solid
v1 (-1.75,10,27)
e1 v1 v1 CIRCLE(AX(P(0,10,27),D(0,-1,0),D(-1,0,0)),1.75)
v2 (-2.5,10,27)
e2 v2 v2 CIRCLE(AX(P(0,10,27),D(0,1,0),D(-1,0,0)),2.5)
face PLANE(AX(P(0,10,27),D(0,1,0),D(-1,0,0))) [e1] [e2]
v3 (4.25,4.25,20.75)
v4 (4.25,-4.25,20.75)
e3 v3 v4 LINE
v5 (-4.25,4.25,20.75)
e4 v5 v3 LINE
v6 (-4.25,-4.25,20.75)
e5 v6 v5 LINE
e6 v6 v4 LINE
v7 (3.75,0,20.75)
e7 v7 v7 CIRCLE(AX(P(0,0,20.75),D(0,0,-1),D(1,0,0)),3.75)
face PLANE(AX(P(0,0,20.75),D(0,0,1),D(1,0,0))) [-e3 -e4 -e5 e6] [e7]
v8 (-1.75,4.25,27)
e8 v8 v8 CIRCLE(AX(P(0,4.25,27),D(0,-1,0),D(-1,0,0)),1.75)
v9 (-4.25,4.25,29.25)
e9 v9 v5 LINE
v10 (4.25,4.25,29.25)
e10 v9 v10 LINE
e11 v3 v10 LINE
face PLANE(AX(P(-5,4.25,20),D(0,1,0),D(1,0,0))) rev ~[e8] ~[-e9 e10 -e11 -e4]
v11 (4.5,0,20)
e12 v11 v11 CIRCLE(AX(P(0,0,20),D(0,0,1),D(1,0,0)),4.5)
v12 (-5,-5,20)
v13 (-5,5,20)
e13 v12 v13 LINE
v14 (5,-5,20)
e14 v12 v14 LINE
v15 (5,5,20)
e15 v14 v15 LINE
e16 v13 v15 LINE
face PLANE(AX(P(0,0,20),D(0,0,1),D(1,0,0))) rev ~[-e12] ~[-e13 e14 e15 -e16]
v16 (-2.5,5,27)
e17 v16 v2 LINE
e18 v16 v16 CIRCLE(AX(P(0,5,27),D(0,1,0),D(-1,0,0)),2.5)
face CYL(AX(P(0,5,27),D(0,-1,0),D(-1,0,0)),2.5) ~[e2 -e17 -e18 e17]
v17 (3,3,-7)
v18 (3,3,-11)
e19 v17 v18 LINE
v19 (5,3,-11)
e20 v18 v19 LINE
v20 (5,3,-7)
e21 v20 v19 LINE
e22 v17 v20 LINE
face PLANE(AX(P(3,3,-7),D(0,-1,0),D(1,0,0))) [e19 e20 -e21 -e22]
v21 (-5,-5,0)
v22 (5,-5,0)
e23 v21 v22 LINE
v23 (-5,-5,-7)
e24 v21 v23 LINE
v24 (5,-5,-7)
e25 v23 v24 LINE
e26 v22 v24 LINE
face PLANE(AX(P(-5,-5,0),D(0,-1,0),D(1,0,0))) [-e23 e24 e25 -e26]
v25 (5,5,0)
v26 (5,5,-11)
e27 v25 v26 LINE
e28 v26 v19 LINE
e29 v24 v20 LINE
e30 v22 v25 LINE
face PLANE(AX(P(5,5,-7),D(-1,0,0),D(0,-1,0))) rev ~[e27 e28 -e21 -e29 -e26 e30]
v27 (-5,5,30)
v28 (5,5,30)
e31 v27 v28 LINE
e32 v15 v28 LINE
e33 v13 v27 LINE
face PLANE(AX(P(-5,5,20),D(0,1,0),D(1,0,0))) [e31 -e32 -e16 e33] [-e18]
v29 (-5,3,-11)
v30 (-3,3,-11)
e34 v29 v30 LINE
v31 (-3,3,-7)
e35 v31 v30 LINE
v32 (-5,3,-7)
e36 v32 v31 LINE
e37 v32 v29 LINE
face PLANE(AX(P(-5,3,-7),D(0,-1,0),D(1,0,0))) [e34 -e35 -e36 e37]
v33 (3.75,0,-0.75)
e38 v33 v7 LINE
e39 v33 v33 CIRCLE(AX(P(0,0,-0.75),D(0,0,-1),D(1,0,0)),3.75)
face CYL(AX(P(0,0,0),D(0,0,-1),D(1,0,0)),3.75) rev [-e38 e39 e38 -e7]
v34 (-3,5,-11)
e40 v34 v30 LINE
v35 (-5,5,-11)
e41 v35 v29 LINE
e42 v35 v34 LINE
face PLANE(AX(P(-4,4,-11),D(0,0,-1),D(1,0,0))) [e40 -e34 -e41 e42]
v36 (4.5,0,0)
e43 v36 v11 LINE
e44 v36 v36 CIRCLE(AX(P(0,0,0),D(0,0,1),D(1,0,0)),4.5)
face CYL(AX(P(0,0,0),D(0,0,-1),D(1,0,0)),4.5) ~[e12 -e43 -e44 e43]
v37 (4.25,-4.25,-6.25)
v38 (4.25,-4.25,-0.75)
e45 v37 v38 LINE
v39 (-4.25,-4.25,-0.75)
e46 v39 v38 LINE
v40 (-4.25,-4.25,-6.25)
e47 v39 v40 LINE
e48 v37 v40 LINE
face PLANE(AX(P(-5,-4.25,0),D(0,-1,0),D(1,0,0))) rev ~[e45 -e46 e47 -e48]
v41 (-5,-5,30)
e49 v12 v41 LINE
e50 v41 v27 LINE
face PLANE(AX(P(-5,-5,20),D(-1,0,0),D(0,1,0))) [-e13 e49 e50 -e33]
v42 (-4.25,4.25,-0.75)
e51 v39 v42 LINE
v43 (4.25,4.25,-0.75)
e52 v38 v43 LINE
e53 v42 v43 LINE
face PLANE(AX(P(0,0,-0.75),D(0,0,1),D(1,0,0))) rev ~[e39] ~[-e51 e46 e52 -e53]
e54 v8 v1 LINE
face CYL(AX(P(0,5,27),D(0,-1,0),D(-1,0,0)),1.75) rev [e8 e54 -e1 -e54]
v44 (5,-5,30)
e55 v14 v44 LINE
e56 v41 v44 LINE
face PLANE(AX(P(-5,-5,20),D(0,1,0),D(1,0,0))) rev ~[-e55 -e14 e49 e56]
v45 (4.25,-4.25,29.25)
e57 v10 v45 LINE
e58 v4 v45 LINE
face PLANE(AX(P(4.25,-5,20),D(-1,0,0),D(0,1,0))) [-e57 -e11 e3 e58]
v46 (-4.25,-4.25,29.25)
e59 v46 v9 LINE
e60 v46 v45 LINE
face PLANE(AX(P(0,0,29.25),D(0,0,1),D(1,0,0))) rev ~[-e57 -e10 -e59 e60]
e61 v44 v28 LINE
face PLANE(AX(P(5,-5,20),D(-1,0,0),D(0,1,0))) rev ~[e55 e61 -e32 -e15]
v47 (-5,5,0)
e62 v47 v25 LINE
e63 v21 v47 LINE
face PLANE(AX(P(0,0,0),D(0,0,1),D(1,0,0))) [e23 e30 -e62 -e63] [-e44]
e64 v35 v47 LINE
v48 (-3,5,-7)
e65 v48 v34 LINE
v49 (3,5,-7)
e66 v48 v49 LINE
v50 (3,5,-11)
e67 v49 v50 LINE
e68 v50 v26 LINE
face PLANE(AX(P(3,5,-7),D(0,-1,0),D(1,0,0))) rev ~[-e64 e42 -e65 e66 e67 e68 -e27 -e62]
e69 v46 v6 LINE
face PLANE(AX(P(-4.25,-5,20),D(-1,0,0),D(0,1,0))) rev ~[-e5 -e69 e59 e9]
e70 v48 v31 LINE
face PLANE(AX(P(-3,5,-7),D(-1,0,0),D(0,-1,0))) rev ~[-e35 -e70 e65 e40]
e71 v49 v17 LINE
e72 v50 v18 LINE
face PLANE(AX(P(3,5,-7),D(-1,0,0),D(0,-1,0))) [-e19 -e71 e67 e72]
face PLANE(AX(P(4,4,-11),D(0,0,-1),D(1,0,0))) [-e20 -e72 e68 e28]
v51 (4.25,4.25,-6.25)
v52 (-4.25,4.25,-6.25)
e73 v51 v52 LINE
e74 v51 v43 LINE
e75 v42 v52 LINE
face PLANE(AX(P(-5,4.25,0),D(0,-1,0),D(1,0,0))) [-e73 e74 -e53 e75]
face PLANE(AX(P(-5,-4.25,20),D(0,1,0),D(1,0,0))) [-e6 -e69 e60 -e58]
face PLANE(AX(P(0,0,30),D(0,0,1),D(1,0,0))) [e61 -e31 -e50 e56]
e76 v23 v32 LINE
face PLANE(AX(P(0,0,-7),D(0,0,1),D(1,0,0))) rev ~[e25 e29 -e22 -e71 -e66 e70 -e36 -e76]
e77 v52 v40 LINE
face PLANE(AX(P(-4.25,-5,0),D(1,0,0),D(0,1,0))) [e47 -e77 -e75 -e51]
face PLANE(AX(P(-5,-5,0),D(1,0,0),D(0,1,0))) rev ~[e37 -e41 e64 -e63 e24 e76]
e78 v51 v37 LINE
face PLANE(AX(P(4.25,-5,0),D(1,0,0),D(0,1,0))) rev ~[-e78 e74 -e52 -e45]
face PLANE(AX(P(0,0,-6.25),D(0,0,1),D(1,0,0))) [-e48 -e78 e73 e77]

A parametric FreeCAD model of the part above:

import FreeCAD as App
import Part
import Sketcher
Q = App.Units.Quantity


def faces_at(feature, points):
    """Names of the faces that lie closest to the given points."""
    faces = feature.Shape.Faces
    near = lambda p: min(range(len(faces)), key=lambda i: faces[i].distToShape(Part.Vertex(*p))[0])
    return sorted({f"Face{near(p) + 1}" for p in points})


def add_polygon(sketch, points):
    """Adds a closed chain of lines whose ends are joined by coincident constraints."""
    first, n = sketch.GeometryCount, len(points)
    for a, b in zip(points, points[1:] + points[:1]):
        sketch.addGeometry(Part.LineSegment(App.Vector(*a, 0), App.Vector(*b, 0)), False)
    for i in range(n):
        sketch.addConstraint(Sketcher.Constraint("Coincident", first + i, 2, first + (i + 1) % n, 1))

doc = App.newDocument("Part")
body = doc.addObject("PartDesign::Body", "Body")

# Sketch on XY plane
sketch1 = doc.addObject("Sketcher::SketchObject", "Sketch")
body.addObject(sketch1)
sketch1.AttachmentSupport = (doc.XY_Plane, [""])
sketch1.MapMode = "FlatFace"
sketch1.addGeometry(Part.Circle(App.Vector(0, 0, 0), App.Vector(0, 0, 1), 4.5), False)
sketch1.addConstraint([
    Sketcher.Constraint("Coincident", 0, 3, -1, 1),
    Sketcher.Constraint("Diameter", 0, Q("9 mm")),
])
pad1 = doc.addObject("PartDesign::Pad", "Pad")
body.addObject(pad1)
pad1.Profile = sketch1
pad1.Length = 20

# Sketch on XY plane
sketch2 = doc.addObject("Sketcher::SketchObject", "Sketch001")
body.addObject(sketch2)
sketch2.AttachmentSupport = (doc.XY_Plane, [""])
sketch2.MapMode = "FlatFace"
add_polygon(sketch2, [(-5, 5), (-5, -5), (5, -5), (5, 5)])  # lines 0-3
sketch2.addConstraint([
    Sketcher.Constraint("Vertical", 0),
    Sketcher.Constraint("Horizontal", 1),
    Sketcher.Constraint("Vertical", 2),
    Sketcher.Constraint("Horizontal", 3),
    Sketcher.Constraint("Symmetric", 0, 2, 2, 2, -1, 1),
    Sketcher.Constraint("Equal", 3, 0),
    Sketcher.Constraint("DistanceX", 1, 1, 1, 2, Q("10 mm")),
])
pad2 = doc.addObject("PartDesign::Pad", "Pad001")
body.addObject(pad2)
pad2.Profile = sketch2
pad2.Length = 7
pad2.Reversed = True

# Sketch on XY plane
sketch3 = doc.addObject("Sketcher::SketchObject", "Sketch002")
body.addObject(sketch3)
sketch3.AttachmentSupport = (doc.XY_Plane, [""])
sketch3.MapMode = "FlatFace"
sketch3.AttachmentOffset = App.Placement(App.Vector(0, 0, 20), App.Rotation())
add_polygon(sketch3, [(-5, 5), (-5, -5), (5, -5), (5, 5)])  # lines 0-3
sketch3.addConstraint([
    Sketcher.Constraint("Vertical", 0),
    Sketcher.Constraint("Horizontal", 1),
    Sketcher.Constraint("Vertical", 2),
    Sketcher.Constraint("Horizontal", 3),
    Sketcher.Constraint("Symmetric", 0, 2, 2, 2, -1, 1),
    Sketcher.Constraint("Equal", 3, 0),
    Sketcher.Constraint("DistanceX", 1, 1, 1, 2, Q("10 mm")),
])
pad3 = doc.addObject("PartDesign::Pad", "Pad002")
body.addObject(pad3)
pad3.Profile = sketch3
pad3.Length = 10

# Sketch on XZ plane
sketch4 = doc.addObject("Sketcher::SketchObject", "Sketch003")
body.addObject(sketch4)
sketch4.AttachmentSupport = (doc.XZ_Plane, [""])
sketch4.MapMode = "FlatFace"
sketch4.AttachmentOffset = App.Placement(App.Vector(0, 0, -5), App.Rotation())
sketch4.addGeometry(Part.Circle(App.Vector(0, 27, 0), App.Vector(0, 0, 1), 2.5), False)
sketch4.addConstraint([
    Sketcher.Constraint("PointOnObject", 0, 3, -2),
    Sketcher.Constraint("Diameter", 0, Q("5 mm")),
    Sketcher.Constraint("DistanceY", -1, 1, 0, 3, Q("27 mm")),
])
pad4 = doc.addObject("PartDesign::Pad", "Pad003")
body.addObject(pad4)
pad4.Profile = sketch4
pad4.Length = 5
pad4.Reversed = True
doc.recompute()

thickness = doc.addObject("PartDesign::Thickness", "Thickness")
body.addObject(thickness)
thickness.Base = (pad4, faces_at(pad4, [(0, 10, 27)]))
thickness.Value = 0.75
thickness.Reversed = True
thickness.Join = "Intersection"

# Sketch on XY plane
sketch5 = doc.addObject("Sketcher::SketchObject", "Sketch004")
body.addObject(sketch5)
sketch5.AttachmentSupport = (doc.XY_Plane, [""])
sketch5.MapMode = "FlatFace"
sketch5.AttachmentOffset = App.Placement(App.Vector(0, 0, -7), App.Rotation())
add_polygon(sketch5, [(3, 3), (3, 5), (5, 5), (5, 3)])  # lines 0-3
add_polygon(sketch5, [(-5, 3), (-5, 5), (-3, 5), (-3, 3)])  # lines 4-7
sketch5.addConstraint([
    Sketcher.Constraint("Vertical", 0),
    Sketcher.Constraint("Horizontal", 1),
    Sketcher.Constraint("Vertical", 2),
    Sketcher.Constraint("Horizontal", 3),
    Sketcher.Constraint("Vertical", 4),
    Sketcher.Constraint("Horizontal", 5),
    Sketcher.Constraint("Vertical", 6),
    Sketcher.Constraint("Horizontal", 7),
    Sketcher.Constraint("Symmetric", 1, 2, 4, 2, -2),
    Sketcher.Constraint("Symmetric", 3, 2, 6, 2, -2),
    Sketcher.Constraint("Equal", 7, 0),
    Sketcher.Constraint("DistanceX", 1, 1, 1, 2, Q("2 mm")),
    Sketcher.Constraint("DistanceX", -1, 1, 0, 2, Q("3 mm")),
    Sketcher.Constraint("DistanceY", -1, 1, 0, 2, Q("5 mm")),
])
pad5 = doc.addObject("PartDesign::Pad", "Pad004")
body.addObject(pad5)
pad5.Profile = sketch5
pad5.Length = 4
pad5.Reversed = True

doc.recompute()
